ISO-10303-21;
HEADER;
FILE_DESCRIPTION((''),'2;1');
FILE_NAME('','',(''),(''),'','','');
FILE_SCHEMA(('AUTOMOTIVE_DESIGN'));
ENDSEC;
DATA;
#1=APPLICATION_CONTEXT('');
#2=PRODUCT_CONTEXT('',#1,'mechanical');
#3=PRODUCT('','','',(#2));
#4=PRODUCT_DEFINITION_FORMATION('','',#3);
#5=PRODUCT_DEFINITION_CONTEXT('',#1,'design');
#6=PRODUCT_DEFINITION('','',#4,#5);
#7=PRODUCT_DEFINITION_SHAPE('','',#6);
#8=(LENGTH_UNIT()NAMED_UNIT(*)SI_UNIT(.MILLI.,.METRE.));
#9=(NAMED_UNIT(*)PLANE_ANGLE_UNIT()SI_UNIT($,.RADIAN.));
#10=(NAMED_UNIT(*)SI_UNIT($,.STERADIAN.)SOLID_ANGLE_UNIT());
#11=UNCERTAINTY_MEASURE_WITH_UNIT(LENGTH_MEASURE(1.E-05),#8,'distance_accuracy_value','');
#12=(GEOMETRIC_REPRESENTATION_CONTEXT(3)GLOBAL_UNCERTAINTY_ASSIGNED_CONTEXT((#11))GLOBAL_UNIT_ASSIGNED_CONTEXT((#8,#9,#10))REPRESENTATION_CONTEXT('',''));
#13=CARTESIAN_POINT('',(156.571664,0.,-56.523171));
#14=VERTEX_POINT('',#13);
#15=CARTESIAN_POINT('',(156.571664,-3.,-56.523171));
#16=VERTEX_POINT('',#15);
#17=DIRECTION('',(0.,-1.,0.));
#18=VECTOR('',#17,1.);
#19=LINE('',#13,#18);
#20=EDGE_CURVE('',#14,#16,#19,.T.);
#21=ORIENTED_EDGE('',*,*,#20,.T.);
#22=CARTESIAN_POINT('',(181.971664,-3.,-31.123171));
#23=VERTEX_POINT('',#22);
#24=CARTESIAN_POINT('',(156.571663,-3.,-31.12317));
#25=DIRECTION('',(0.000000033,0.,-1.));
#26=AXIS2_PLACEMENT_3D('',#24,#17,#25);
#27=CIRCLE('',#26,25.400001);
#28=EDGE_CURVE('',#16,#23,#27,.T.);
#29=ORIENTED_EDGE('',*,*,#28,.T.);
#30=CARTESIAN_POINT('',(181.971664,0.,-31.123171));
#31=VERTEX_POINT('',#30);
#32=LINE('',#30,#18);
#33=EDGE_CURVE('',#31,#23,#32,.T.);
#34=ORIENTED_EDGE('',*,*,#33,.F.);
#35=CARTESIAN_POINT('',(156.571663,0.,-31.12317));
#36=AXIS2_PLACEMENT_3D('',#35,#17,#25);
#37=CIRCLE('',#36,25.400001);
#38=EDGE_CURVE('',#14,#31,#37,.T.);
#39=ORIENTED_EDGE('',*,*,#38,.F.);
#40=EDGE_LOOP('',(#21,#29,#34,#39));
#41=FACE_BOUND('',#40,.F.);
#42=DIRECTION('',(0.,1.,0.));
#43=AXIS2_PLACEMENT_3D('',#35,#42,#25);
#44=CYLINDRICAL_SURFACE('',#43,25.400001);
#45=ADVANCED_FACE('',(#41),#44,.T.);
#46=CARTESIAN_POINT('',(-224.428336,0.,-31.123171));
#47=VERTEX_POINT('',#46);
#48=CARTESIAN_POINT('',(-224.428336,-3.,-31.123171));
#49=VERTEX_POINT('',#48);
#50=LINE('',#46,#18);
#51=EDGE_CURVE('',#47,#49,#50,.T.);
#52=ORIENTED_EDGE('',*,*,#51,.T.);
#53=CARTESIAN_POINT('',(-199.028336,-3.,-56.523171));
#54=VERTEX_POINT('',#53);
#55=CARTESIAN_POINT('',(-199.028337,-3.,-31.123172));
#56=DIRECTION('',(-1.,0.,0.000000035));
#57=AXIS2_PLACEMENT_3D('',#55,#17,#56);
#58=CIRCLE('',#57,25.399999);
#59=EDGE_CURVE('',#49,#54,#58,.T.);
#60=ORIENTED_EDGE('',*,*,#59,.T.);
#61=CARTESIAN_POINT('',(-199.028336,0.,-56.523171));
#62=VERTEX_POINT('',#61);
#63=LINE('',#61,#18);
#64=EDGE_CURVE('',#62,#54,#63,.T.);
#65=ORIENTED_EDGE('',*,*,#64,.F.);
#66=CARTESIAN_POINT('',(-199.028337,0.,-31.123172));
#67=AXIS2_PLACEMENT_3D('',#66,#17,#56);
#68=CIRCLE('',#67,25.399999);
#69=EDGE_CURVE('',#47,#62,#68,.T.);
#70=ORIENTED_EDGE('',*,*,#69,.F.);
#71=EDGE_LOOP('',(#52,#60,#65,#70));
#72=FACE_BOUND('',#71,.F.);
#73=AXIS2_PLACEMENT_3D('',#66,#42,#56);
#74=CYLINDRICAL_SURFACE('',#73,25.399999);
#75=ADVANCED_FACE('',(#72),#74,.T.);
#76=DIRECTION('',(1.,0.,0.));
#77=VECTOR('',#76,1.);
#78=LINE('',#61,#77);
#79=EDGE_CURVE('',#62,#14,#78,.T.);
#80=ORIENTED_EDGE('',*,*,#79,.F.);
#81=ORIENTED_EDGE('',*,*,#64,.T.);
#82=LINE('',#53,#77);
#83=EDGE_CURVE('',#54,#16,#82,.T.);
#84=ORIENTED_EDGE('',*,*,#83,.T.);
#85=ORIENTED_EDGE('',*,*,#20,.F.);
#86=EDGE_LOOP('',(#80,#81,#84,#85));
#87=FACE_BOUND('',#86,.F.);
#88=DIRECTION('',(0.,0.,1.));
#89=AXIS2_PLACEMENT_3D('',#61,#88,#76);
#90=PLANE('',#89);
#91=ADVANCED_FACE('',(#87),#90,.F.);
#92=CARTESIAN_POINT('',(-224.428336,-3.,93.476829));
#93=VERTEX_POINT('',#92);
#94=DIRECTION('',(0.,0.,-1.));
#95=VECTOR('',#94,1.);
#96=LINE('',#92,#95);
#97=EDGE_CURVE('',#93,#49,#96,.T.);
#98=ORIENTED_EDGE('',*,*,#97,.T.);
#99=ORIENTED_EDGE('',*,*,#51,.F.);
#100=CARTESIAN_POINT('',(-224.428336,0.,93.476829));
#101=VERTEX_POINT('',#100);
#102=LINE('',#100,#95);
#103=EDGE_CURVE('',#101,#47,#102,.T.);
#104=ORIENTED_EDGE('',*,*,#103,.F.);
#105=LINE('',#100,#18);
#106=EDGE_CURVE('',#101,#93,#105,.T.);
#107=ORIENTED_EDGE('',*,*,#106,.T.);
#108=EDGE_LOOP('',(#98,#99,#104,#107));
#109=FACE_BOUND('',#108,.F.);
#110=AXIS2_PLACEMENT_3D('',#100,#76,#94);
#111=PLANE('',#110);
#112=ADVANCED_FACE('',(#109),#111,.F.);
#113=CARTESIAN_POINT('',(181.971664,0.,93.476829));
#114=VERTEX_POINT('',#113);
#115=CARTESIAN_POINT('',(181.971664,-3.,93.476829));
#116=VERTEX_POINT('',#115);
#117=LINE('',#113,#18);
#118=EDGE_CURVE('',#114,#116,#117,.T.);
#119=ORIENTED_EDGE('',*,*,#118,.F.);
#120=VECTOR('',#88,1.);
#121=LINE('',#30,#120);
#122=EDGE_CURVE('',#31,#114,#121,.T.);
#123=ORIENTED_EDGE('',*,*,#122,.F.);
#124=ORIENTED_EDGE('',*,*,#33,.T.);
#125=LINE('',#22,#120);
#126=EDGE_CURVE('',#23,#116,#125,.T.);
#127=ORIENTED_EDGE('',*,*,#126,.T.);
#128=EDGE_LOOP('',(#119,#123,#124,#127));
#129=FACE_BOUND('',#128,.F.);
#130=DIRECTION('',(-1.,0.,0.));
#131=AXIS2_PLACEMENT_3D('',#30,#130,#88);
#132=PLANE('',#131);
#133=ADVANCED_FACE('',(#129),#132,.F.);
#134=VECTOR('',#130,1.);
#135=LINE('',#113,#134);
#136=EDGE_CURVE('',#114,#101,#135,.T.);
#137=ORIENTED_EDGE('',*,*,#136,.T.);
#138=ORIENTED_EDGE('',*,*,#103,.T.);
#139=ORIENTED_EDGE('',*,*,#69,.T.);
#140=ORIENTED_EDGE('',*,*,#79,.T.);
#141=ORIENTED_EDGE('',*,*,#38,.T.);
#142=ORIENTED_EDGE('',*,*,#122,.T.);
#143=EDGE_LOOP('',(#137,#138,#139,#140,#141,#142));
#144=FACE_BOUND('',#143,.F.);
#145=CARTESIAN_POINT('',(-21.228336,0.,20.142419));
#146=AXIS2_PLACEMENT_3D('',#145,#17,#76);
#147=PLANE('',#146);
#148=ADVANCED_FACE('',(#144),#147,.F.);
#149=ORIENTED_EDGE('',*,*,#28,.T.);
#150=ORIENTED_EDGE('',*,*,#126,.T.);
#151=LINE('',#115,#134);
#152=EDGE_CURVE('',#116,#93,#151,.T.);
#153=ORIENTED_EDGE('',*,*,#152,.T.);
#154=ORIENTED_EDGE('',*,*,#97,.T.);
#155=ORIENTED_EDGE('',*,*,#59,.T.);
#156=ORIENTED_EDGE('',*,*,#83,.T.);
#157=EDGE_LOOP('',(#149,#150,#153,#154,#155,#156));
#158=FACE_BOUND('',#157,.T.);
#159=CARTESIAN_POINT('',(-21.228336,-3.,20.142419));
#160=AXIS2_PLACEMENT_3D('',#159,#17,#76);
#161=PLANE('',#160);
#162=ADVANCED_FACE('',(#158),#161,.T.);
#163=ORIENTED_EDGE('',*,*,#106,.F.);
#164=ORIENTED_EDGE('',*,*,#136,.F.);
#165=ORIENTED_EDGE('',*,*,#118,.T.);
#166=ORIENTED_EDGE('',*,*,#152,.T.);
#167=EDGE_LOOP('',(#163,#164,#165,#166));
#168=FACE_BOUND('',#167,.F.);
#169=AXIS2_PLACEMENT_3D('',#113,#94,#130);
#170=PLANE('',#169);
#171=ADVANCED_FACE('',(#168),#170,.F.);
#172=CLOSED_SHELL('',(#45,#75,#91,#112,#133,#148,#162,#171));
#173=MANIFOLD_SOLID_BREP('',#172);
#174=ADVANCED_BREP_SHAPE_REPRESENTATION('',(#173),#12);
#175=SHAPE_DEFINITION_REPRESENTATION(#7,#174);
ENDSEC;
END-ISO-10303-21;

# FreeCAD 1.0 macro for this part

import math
import FreeCAD as App
import Part
import Sketcher
Q = App.Units.Quantity

doc = App.newDocument("Part")
body = doc.addObject("PartDesign::Body", "Body")

# Sketch on XZ plane
sketch1 = body.newObject("Sketcher::SketchObject", "Sketch")
sketch1.AttachmentSupport = (doc.getObject("XZ_Plane"), [""])
sketch1.MapMode = "FlatFace"
sketch1.addGeometry([
    Part.LineSegment(App.Vector(181.971664, -31.123171, 0), App.Vector(181.971664, 93.476829, 0)),  # 0
    Part.LineSegment(App.Vector(181.971664, 93.476829, 0), App.Vector(-224.428336, 93.476829, 0)),  # 1
    Part.LineSegment(App.Vector(-224.428336, 93.476829, 0), App.Vector(-224.428336, -31.123171, 0)),  # 2
    Part.ArcOfCircle(Part.Circle(App.Vector(-199.028337, -31.123172, 0), App.Vector(0, 0, 1), 25.399999), math.radians(179.999998), math.radians(270.000002)),  # 3
    Part.LineSegment(App.Vector(-199.028336, -56.523171, 0), App.Vector(156.571664, -56.523171, 0)),  # 4
    Part.ArcOfCircle(Part.Circle(App.Vector(156.571663, -31.12317, 0), App.Vector(0, 0, 1), 25.400001), math.radians(-89.999998), math.radians(-0.000002)),  # 5
], False)
sketch1.addConstraint([
    Sketcher.Constraint("Coincident", 0, 2, 1, 1),
    Sketcher.Constraint("Coincident", 1, 2, 2, 1),
    Sketcher.Constraint("Tangent", 2, 2, 3, 1),
    Sketcher.Constraint("Tangent", 3, 2, 4, 1),
    Sketcher.Constraint("Tangent", 4, 2, 5, 1),
    Sketcher.Constraint("Tangent", 5, 2, 0, 1),
    Sketcher.Constraint("Vertical", 0),
    Sketcher.Constraint("Horizontal", 1),
    Sketcher.Constraint("Vertical", 2),
    Sketcher.Constraint("Horizontal", 4),
    Sketcher.Constraint("Equal", 3, 5),
    Sketcher.Constraint("Radius", 3, Q("1 in")),
    Sketcher.Constraint("DistanceX", 1, 2, 1, 1, Q("16 in")),
    Sketcher.Constraint("DistanceY", 0, 1, 0, 2, 124.6),
    Sketcher.Constraint("DistanceY", 3, 3, -1, 1, 31.123172),
    Sketcher.Constraint("DistanceX", 3, 3, -1, 1, 199.028337),
])
pad1 = body.newObject("PartDesign::Pad", "Pad")
pad1.Profile = sketch1
pad1.Length = 3

doc.recompute()
